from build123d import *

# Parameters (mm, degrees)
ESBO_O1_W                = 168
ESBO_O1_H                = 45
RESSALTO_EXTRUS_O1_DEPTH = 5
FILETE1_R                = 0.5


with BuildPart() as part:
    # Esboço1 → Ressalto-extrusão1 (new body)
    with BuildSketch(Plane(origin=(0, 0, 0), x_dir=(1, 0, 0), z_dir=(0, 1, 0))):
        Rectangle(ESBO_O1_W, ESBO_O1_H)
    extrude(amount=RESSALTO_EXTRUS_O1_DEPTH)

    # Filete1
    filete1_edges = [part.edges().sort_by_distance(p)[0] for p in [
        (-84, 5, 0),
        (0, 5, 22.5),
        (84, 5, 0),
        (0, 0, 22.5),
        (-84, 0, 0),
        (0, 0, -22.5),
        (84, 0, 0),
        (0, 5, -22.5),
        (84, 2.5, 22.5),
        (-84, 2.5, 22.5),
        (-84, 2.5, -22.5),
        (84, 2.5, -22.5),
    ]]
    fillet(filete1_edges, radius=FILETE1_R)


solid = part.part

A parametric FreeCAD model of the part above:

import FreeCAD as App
import Part
import Sketcher
from FreeCAD import Vector
Q = App.Units.Quantity


def add_polygon(sketch, points):
    """Adds a closed chain of lines whose ends are joined by coincident constraints."""
    first, n = sketch.GeometryCount, len(points)
    for a, b in zip(points, points[1:] + points[:1]):
        sketch.addGeometry(Part.LineSegment(App.Vector(*a, 0), App.Vector(*b, 0)), False)
    for i in range(n):
        sketch.addConstraint(Sketcher.Constraint("Coincident", first + i, 2, first + (i + 1) % n, 1))

doc = App.newDocument("Part")
body = doc.addObject("PartDesign::Body", "Body")

sketch1 = body.newObject("Sketcher::SketchObject", "Sketch")
sketch1.AttachmentSupport = (doc.getObject("XZ_Plane"), [""])
sketch1.MapMode = "FlatFace"
add_polygon(sketch1, [(-84, -22), (-84, 22), (84, 22), (84, -22)])
sketch1.addConstraint([
    Sketcher.Constraint("Vertical", 0),
    Sketcher.Constraint("Horizontal", 1),
    Sketcher.Constraint("Vertical", 2),
    Sketcher.Constraint("Horizontal", 3),
    Sketcher.Constraint("Symmetric", 0, 2, 2, 2, -1, 1),
    Sketcher.Constraint("DistanceX", 1, 1, 1, 2, Q("168 mm")),
    Sketcher.Constraint("DistanceY", 0, 1, 0, 2, Q("45 mm")),
])
pad1 = body.newObject("PartDesign::Pad", "Pad")
pad1.Profile = sketch1
pad1.Length = 5
pad1.Reversed = True
doc.recompute()

fillet = body.newObject("PartDesign::Fillet", "Fillet")
fillet.Base = (pad1, ["Edge1"])
fillet.UseAllEdges = True
fillet.Radius = 0.5

doc.recompute()
